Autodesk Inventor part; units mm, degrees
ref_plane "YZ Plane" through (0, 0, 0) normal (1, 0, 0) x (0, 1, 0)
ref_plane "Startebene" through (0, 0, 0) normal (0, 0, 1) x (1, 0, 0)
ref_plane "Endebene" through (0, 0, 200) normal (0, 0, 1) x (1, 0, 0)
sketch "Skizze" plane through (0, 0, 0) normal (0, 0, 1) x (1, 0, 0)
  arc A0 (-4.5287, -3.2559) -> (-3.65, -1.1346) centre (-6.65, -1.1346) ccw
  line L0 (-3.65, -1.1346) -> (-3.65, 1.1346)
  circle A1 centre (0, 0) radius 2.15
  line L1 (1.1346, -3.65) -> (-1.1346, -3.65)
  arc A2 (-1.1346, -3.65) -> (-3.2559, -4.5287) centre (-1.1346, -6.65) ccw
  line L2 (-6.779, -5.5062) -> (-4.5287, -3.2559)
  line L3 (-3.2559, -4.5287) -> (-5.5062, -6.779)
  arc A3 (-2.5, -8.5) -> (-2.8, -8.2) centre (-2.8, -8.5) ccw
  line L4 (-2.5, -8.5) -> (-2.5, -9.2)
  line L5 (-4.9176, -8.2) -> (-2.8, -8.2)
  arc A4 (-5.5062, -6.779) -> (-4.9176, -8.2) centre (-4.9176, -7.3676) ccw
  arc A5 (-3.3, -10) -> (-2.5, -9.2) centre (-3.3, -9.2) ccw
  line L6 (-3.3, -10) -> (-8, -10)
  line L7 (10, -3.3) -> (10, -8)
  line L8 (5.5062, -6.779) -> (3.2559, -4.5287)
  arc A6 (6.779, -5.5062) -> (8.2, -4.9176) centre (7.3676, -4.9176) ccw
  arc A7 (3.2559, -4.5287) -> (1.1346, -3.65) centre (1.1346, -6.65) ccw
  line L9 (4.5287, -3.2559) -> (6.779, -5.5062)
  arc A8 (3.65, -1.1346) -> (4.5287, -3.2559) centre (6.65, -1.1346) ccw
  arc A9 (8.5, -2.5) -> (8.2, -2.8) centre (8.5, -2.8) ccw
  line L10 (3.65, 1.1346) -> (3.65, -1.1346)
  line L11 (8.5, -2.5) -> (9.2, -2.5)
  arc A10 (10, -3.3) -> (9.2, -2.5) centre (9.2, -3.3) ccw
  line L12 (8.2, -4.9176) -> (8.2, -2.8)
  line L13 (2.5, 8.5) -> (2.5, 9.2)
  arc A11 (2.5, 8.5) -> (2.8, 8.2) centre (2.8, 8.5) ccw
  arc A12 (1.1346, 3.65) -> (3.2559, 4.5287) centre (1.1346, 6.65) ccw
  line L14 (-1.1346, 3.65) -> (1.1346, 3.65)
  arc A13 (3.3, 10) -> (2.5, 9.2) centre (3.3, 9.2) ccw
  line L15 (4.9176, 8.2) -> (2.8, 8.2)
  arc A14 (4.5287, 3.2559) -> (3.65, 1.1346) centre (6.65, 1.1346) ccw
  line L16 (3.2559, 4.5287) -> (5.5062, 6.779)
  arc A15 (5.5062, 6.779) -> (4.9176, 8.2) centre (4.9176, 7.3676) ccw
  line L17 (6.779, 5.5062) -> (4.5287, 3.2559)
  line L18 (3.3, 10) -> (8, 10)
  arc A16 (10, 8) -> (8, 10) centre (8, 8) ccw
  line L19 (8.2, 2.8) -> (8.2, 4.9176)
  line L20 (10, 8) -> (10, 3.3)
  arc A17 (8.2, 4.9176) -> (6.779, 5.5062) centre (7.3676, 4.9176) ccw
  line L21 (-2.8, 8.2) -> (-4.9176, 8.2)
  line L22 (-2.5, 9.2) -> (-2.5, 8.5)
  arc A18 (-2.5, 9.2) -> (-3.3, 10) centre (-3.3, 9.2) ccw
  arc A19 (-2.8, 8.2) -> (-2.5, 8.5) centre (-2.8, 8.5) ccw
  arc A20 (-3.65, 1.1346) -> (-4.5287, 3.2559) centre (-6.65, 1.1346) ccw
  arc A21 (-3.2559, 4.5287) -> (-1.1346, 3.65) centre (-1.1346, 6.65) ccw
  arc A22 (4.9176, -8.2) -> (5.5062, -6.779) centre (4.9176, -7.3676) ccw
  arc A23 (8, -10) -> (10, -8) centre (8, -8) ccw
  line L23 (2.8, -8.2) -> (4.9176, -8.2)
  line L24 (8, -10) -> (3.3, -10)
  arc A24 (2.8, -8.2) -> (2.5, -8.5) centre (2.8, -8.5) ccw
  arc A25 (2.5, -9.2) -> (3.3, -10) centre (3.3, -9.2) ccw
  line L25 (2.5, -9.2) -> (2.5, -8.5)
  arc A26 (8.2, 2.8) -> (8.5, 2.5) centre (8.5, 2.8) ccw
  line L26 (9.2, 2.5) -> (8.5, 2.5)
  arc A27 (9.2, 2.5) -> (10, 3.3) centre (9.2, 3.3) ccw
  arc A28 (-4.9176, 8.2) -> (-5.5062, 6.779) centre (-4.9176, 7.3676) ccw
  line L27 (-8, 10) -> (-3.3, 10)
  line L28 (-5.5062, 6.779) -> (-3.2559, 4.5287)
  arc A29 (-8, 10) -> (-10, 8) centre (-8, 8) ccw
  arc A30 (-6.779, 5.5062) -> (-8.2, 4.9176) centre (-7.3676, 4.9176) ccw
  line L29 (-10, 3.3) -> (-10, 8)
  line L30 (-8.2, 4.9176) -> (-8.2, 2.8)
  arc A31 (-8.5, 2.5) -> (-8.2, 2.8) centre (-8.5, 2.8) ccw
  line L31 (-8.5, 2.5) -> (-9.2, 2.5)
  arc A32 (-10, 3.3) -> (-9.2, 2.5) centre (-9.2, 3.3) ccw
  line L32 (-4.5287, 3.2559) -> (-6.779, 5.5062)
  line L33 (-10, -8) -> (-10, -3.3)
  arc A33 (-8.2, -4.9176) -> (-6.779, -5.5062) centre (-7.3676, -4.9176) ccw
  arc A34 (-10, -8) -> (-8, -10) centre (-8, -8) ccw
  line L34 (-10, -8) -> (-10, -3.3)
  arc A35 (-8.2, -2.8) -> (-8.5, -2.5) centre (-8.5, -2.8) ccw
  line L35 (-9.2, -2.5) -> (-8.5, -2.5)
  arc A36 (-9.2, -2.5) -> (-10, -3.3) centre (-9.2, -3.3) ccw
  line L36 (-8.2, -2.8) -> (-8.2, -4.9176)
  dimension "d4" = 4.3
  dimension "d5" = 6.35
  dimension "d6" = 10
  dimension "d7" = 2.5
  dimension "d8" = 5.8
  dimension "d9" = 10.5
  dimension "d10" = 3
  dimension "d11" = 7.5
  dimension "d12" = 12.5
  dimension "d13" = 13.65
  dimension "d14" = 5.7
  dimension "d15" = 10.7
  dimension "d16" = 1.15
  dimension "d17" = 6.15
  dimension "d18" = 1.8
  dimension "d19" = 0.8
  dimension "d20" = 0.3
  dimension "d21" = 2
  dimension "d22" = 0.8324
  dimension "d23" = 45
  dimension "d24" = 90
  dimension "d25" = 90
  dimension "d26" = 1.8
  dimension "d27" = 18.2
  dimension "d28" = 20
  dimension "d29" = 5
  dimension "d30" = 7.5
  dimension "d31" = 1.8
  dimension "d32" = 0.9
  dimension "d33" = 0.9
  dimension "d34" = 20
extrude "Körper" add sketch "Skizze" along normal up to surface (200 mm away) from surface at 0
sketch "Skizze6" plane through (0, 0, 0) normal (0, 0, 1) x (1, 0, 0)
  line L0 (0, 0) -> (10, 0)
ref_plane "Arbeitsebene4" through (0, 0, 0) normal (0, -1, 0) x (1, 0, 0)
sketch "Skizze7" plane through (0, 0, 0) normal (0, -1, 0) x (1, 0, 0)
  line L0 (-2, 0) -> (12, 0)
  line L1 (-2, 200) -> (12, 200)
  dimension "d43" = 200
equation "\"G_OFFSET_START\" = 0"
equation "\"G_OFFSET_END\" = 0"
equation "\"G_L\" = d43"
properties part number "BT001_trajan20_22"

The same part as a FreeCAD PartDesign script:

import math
import FreeCAD as App
import Part
import Sketcher

V = App.Vector

doc = App.newDocument("Part")
body = doc.addObject("PartDesign::Body", "Body")

# Sketch on XY plane
sketch1 = body.newObject("Sketcher::SketchObject", "Sketch")
sketch1.AttachmentSupport = (doc.getObject("XY_Plane"), [""])
sketch1.MapMode = "FlatFace"
sketch1.addGeometry([
    Part.ArcOfCircle(Part.Circle(V(-6.65, -1.1346, 0), V(0, 0, 1), 2.999971), math.radians(-45), math.radians(0)),  # 0
    Part.LineSegment(V(-4.5287, -3.2559, 0), V(-6.779, -5.5062, 0)),  # 1
    Part.ArcOfCircle(Part.Circle(V(-7.3676, -4.9176, 0), V(0, 0, 1), 0.8324), math.radians(180), math.radians(315)),  # 2
    Part.LineSegment(V(-8.2, -4.9176, 0), V(-8.2, -2.8, 0)),  # 3
    Part.ArcOfCircle(Part.Circle(V(-8.5, -2.8, 0), V(0, 0, 1), 0.3), math.radians(0), math.radians(90)),  # 4
    Part.LineSegment(V(-8.5, -2.5, 0), V(-9.2, -2.5, 0)),  # 5
    Part.ArcOfCircle(Part.Circle(V(-9.2, -3.3, 0), V(0, 0, 1), 0.8), math.radians(90), math.radians(180)),  # 6
    Part.LineSegment(V(-10, -3.3, 0), V(-10, -8, 0)),  # 7
    Part.ArcOfCircle(Part.Circle(V(-8, -8, 0), V(0, 0, 1), 2), math.radians(180), math.radians(270)),  # 8
    Part.LineSegment(V(-8, -10, 0), V(-3.3, -10, 0)),  # 9
    Part.ArcOfCircle(Part.Circle(V(-3.3, -9.2, 0), V(0, 0, 1), 0.8), math.radians(-90), math.radians(0)),  # 10
    Part.LineSegment(V(-2.5, -9.2, 0), V(-2.5, -8.5, 0)),  # 11
    Part.ArcOfCircle(Part.Circle(V(-2.8, -8.5, 0), V(0, 0, 1), 0.3), math.radians(0), math.radians(90)),  # 12
    Part.LineSegment(V(-2.8, -8.2, 0), V(-4.9176, -8.2, 0)),  # 13
    Part.ArcOfCircle(Part.Circle(V(-4.9176, -7.3676, 0), V(0, 0, 1), 0.832406), math.radians(135), math.radians(270)),  # 14
    Part.LineSegment(V(-5.5062, -6.779, 0), V(-3.2559, -4.5287, 0)),  # 15
    Part.ArcOfCircle(Part.Circle(V(-1.1346, -6.65, 0), V(0, 0, 1), 3), math.radians(90), math.radians(135)),  # 16
    Part.LineSegment(V(-1.1346, -3.65, 0), V(1.1346, -3.65, 0)),  # 17
    Part.ArcOfCircle(Part.Circle(V(1.1346, -6.65, 0), V(0, 0, 1), 2.999971), math.radians(45), math.radians(90)),  # 18
    Part.LineSegment(V(3.2559, -4.5287, 0), V(5.5062, -6.779, 0)),  # 19
    Part.ArcOfCircle(Part.Circle(V(4.9176, -7.3676, 0), V(0, 0, 1), 0.8324), math.radians(-90), math.radians(45)),  # 20
    Part.LineSegment(V(4.9176, -8.2, 0), V(2.8, -8.2, 0)),  # 21
    Part.ArcOfCircle(Part.Circle(V(2.8, -8.5, 0), V(0, 0, 1), 0.3), math.radians(90), math.radians(180)),  # 22
    Part.LineSegment(V(2.5, -8.5, 0), V(2.5, -9.2, 0)),  # 23
    Part.ArcOfCircle(Part.Circle(V(3.3, -9.2, 0), V(0, 0, 1), 0.8), math.radians(180), math.radians(270)),  # 24
    Part.LineSegment(V(3.3, -10, 0), V(8, -10, 0)),  # 25
    Part.ArcOfCircle(Part.Circle(V(8, -8, 0), V(0, 0, 1), 2), math.radians(-90), math.radians(0)),  # 26
    Part.LineSegment(V(10, -8, 0), V(10, -3.3, 0)),  # 27
    Part.ArcOfCircle(Part.Circle(V(9.2, -3.3, 0), V(0, 0, 1), 0.8), math.radians(0), math.radians(90)),  # 28
    Part.LineSegment(V(9.2, -2.5, 0), V(8.5, -2.5, 0)),  # 29
    Part.ArcOfCircle(Part.Circle(V(8.5, -2.8, 0), V(0, 0, 1), 0.3), math.radians(90), math.radians(180)),  # 30
    Part.LineSegment(V(8.2, -2.8, 0), V(8.2, -4.9176, 0)),  # 31
    Part.ArcOfCircle(Part.Circle(V(7.3676, -4.9176, 0), V(0, 0, 1), 0.832406), math.radians(-135), math.radians(0)),  # 32
    Part.LineSegment(V(6.779, -5.5062, 0), V(4.5287, -3.2559, 0)),  # 33
    Part.ArcOfCircle(Part.Circle(V(6.65, -1.1346, 0), V(0, 0, 1), 3), math.radians(180), math.radians(225)),  # 34
    Part.LineSegment(V(3.65, -1.1346, 0), V(3.65, 1.1346, 0)),  # 35
    Part.ArcOfCircle(Part.Circle(V(6.65, 1.1346, 0), V(0, 0, 1), 2.999971), math.radians(135), math.radians(180)),  # 36
    Part.LineSegment(V(4.5287, 3.2559, 0), V(6.779, 5.5062, 0)),  # 37
    Part.ArcOfCircle(Part.Circle(V(7.3676, 4.9176, 0), V(0, 0, 1), 0.8324), math.radians(0), math.radians(135)),  # 38
    Part.LineSegment(V(8.2, 4.9176, 0), V(8.2, 2.8, 0)),  # 39
    Part.ArcOfCircle(Part.Circle(V(8.5, 2.8, 0), V(0, 0, 1), 0.3), math.radians(180), math.radians(270)),  # 40
    Part.LineSegment(V(8.5, 2.5, 0), V(9.2, 2.5, 0)),  # 41
    Part.ArcOfCircle(Part.Circle(V(9.2, 3.3, 0), V(0, 0, 1), 0.8), math.radians(-90), math.radians(0)),  # 42
    Part.LineSegment(V(10, 3.3, 0), V(10, 8, 0)),  # 43
    Part.ArcOfCircle(Part.Circle(V(8, 8, 0), V(0, 0, 1), 2), math.radians(0), math.radians(90)),  # 44
    Part.LineSegment(V(8, 10, 0), V(3.3, 10, 0)),  # 45
    Part.ArcOfCircle(Part.Circle(V(3.3, 9.2, 0), V(0, 0, 1), 0.8), math.radians(90), math.radians(180)),  # 46
    Part.LineSegment(V(2.5, 9.2, 0), V(2.5, 8.5, 0)),  # 47
    Part.ArcOfCircle(Part.Circle(V(2.8, 8.5, 0), V(0, 0, 1), 0.3), math.radians(180), math.radians(270)),  # 48
    Part.LineSegment(V(2.8, 8.2, 0), V(4.9176, 8.2, 0)),  # 49
    Part.ArcOfCircle(Part.Circle(V(4.9176, 7.3676, 0), V(0, 0, 1), 0.832406), math.radians(-45), math.radians(90)),  # 50
    Part.LineSegment(V(5.5062, 6.779, 0), V(3.2559, 4.5287, 0)),  # 51
    Part.ArcOfCircle(Part.Circle(V(1.1346, 6.65, 0), V(0, 0, 1), 3), math.radians(-90), math.radians(-45)),  # 52
    Part.LineSegment(V(1.1346, 3.65, 0), V(-1.1346, 3.65, 0)),  # 53
    Part.ArcOfCircle(Part.Circle(V(-1.1346, 6.65, 0), V(0, 0, 1), 2.999971), math.radians(-135), math.radians(-90)),  # 54
    Part.LineSegment(V(-3.2559, 4.5287, 0), V(-5.5062, 6.779, 0)),  # 55
    Part.ArcOfCircle(Part.Circle(V(-4.9176, 7.3676, 0), V(0, 0, 1), 0.8324), math.radians(90), math.radians(225)),  # 56
    Part.LineSegment(V(-4.9176, 8.2, 0), V(-2.8, 8.2, 0)),  # 57
    Part.ArcOfCircle(Part.Circle(V(-2.8, 8.5, 0), V(0, 0, 1), 0.3), math.radians(-90), math.radians(0)),  # 58
    Part.LineSegment(V(-2.5, 8.5, 0), V(-2.5, 9.2, 0)),  # 59
    Part.ArcOfCircle(Part.Circle(V(-3.3, 9.2, 0), V(0, 0, 1), 0.8), math.radians(0), math.radians(90)),  # 60
    Part.LineSegment(V(-3.3, 10, 0), V(-8, 10, 0)),  # 61
    Part.ArcOfCircle(Part.Circle(V(-8, 8, 0), V(0, 0, 1), 2), math.radians(90), math.radians(180)),  # 62
    Part.LineSegment(V(-10, 8, 0), V(-10, 3.3, 0)),  # 63
    Part.ArcOfCircle(Part.Circle(V(-9.2, 3.3, 0), V(0, 0, 1), 0.8), math.radians(180), math.radians(270)),  # 64
    Part.LineSegment(V(-9.2, 2.5, 0), V(-8.5, 2.5, 0)),  # 65
    Part.ArcOfCircle(Part.Circle(V(-8.5, 2.8, 0), V(0, 0, 1), 0.3), math.radians(-90), math.radians(0)),  # 66
    Part.LineSegment(V(-8.2, 2.8, 0), V(-8.2, 4.9176, 0)),  # 67
    Part.ArcOfCircle(Part.Circle(V(-7.3676, 4.9176, 0), V(0, 0, 1), 0.832406), math.radians(45), math.radians(180)),  # 68
    Part.LineSegment(V(-6.779, 5.5062, 0), V(-4.5287, 3.2559, 0)),  # 69
    Part.ArcOfCircle(Part.Circle(V(-6.65, 1.1346, 0), V(0, 0, 1), 3), math.radians(0), math.radians(45)),  # 70
    Part.LineSegment(V(-3.65, 1.1346, 0), V(-3.65, -1.1346, 0)),  # 71
    Part.Circle(V(0, 0, 0), V(0, 0, 1), 2.15),  # 72
], False)
sketch1.addConstraint([
    Sketcher.Constraint("Tangent", 0, 1, 1, 1),
    Sketcher.Constraint("Tangent", 1, 2, 2, 2),
    Sketcher.Constraint("Tangent", 2, 1, 3, 1),
    Sketcher.Constraint("Tangent", 3, 2, 4, 1),
    Sketcher.Constraint("Tangent", 4, 2, 5, 1),
    Sketcher.Constraint("Tangent", 5, 2, 6, 1),
    Sketcher.Constraint("Tangent", 6, 2, 7, 1),
    Sketcher.Constraint("Tangent", 7, 2, 8, 1),
    Sketcher.Constraint("Tangent", 8, 2, 9, 1),
    Sketcher.Constraint("Tangent", 9, 2, 10, 1),
    Sketcher.Constraint("Tangent", 10, 2, 11, 1),
    Sketcher.Constraint("Tangent", 11, 2, 12, 1),
    Sketcher.Constraint("Tangent", 12, 2, 13, 1),
    Sketcher.Constraint("Tangent", 13, 2, 14, 2),
    Sketcher.Constraint("Tangent", 14, 1, 15, 1),
    Sketcher.Constraint("Tangent", 15, 2, 16, 2),
    Sketcher.Constraint("Tangent", 16, 1, 17, 1),
    Sketcher.Constraint("Tangent", 17, 2, 18, 2),
    Sketcher.Constraint("Tangent", 18, 1, 19, 1),
    Sketcher.Constraint("Tangent", 19, 2, 20, 2),
    Sketcher.Constraint("Tangent", 20, 1, 21, 1),
    Sketcher.Constraint("Tangent", 21, 2, 22, 1),
    Sketcher.Constraint("Tangent", 22, 2, 23, 1),
    Sketcher.Constraint("Tangent", 23, 2, 24, 1),
    Sketcher.Constraint("Tangent", 24, 2, 25, 1),
    Sketcher.Constraint("Tangent", 25, 2, 26, 1),
    Sketcher.Constraint("Tangent", 26, 2, 27, 1),
    Sketcher.Constraint("Tangent", 27, 2, 28, 1),
    Sketcher.Constraint("Tangent", 28, 2, 29, 1),
    Sketcher.Constraint("Tangent", 29, 2, 30, 1),
    Sketcher.Constraint("Tangent", 30, 2, 31, 1),
    Sketcher.Constraint("Tangent", 31, 2, 32, 2),
    Sketcher.Constraint("Tangent", 32, 1, 33, 1),
    Sketcher.Constraint("Tangent", 33, 2, 34, 2),
    Sketcher.Constraint("Tangent", 34, 1, 35, 1),
    Sketcher.Constraint("Tangent", 35, 2, 36, 2),
    Sketcher.Constraint("Tangent", 36, 1, 37, 1),
    Sketcher.Constraint("Tangent", 37, 2, 38, 2),
    Sketcher.Constraint("Tangent", 38, 1, 39, 1),
    Sketcher.Constraint("Tangent", 39, 2, 40, 1),
    Sketcher.Constraint("Tangent", 40, 2, 41, 1),
    Sketcher.Constraint("Tangent", 41, 2, 42, 1),
    Sketcher.Constraint("Tangent", 42, 2, 43, 1),
    Sketcher.Constraint("Tangent", 43, 2, 44, 1),
    Sketcher.Constraint("Tangent", 44, 2, 45, 1),
    Sketcher.Constraint("Tangent", 45, 2, 46, 1),
    Sketcher.Constraint("Tangent", 46, 2, 47, 1),
    Sketcher.Constraint("Tangent", 47, 2, 48, 1),
    Sketcher.Constraint("Tangent", 48, 2, 49, 1),
    Sketcher.Constraint("Tangent", 49, 2, 50, 2),
    Sketcher.Constraint("Tangent", 50, 1, 51, 1),
    Sketcher.Constraint("Tangent", 51, 2, 52, 2),
    Sketcher.Constraint("Tangent", 52, 1, 53, 1),
    Sketcher.Constraint("Tangent", 53, 2, 54, 2),
    Sketcher.Constraint("Tangent", 54, 1, 55, 1),
    Sketcher.Constraint("Tangent", 55, 2, 56, 2),
    Sketcher.Constraint("Tangent", 56, 1, 57, 1),
    Sketcher.Constraint("Tangent", 57, 2, 58, 1),
    Sketcher.Constraint("Tangent", 58, 2, 59, 1),
    Sketcher.Constraint("Tangent", 59, 2, 60, 1),
    Sketcher.Constraint("Tangent", 60, 2, 61, 1),
    Sketcher.Constraint("Tangent", 61, 2, 62, 1),
    Sketcher.Constraint("Tangent", 62, 2, 63, 1),
    Sketcher.Constraint("Tangent", 63, 2, 64, 1),
    Sketcher.Constraint("Tangent", 64, 2, 65, 1),
    Sketcher.Constraint("Tangent", 65, 2, 66, 1),
    Sketcher.Constraint("Tangent", 66, 2, 67, 1),
    Sketcher.Constraint("Tangent", 67, 2, 68, 2),
    Sketcher.Constraint("Tangent", 68, 1, 69, 1),
    Sketcher.Constraint("Tangent", 69, 2, 70, 2),
    Sketcher.Constraint("Tangent", 70, 1, 71, 1),
    Sketcher.Constraint("Tangent", 71, 2, 0, 2),
    Sketcher.Constraint("Vertical", 3),
    Sketcher.Constraint("Horizontal", 5),
    Sketcher.Constraint("Vertical", 7),
    Sketcher.Constraint("Horizontal", 9),
    Sketcher.Constraint("Vertical", 11),
    Sketcher.Constraint("Horizontal", 13),
    Sketcher.Constraint("Horizontal", 17),
    Sketcher.Constraint("Horizontal", 21),
    Sketcher.Constraint("Vertical", 23),
    Sketcher.Constraint("Horizontal", 25),
    Sketcher.Constraint("Vertical", 27),
    Sketcher.Constraint("Horizontal", 29),
    Sketcher.Constraint("Vertical", 31),
    Sketcher.Constraint("Vertical", 35),
    Sketcher.Constraint("Vertical", 39),
    Sketcher.Constraint("Horizontal", 41),
    Sketcher.Constraint("Vertical", 43),
    Sketcher.Constraint("Horizontal", 45),
    Sketcher.Constraint("Vertical", 47),
    Sketcher.Constraint("Horizontal", 49),
    Sketcher.Constraint("Horizontal", 53),
    Sketcher.Constraint("Horizontal", 57),
    Sketcher.Constraint("Vertical", 59),
    Sketcher.Constraint("Horizontal", 61),
    Sketcher.Constraint("Vertical", 63),
    Sketcher.Constraint("Horizontal", 65),
    Sketcher.Constraint("Vertical", 67),
    Sketcher.Constraint("Vertical", 71),
    Sketcher.Constraint("Coincident", 72, 3, -1, 1),
    Sketcher.Constraint("Equal", 6, 10),
    Sketcher.Constraint("Equal", 4, 12),
    Sketcher.Constraint("Equal", 2, 14),
    Sketcher.Constraint("Equal", 0, 16),
    Sketcher.Constraint("Equal", 16, 18),
    Sketcher.Constraint("Equal", 14, 20),
    Sketcher.Constraint("Equal", 12, 22),
    Sketcher.Constraint("Equal", 10, 24),
    Sketcher.Constraint("Equal", 8, 26),
    Sketcher.Constraint("Equal", 24, 28),
    Sketcher.Constraint("Equal", 22, 30),
    Sketcher.Constraint("Equal", 20, 32),
    Sketcher.Constraint("Equal", 18, 34),
    Sketcher.Constraint("Equal", 34, 36),
    Sketcher.Constraint("Equal", 32, 38),
    Sketcher.Constraint("Equal", 30, 40),
    Sketcher.Constraint("Equal", 28, 42),
    Sketcher.Constraint("Equal", 26, 44),
    Sketcher.Constraint("Equal", 42, 46),
    Sketcher.Constraint("Equal", 40, 48),
    Sketcher.Constraint("Equal", 38, 50),
    Sketcher.Constraint("Equal", 36, 52),
    Sketcher.Constraint("Equal", 52, 54),
    Sketcher.Constraint("Equal", 50, 56),
    Sketcher.Constraint("Equal", 48, 58),
    Sketcher.Constraint("Equal", 46, 60),
    Sketcher.Constraint("Equal", 44, 62),
    Sketcher.Constraint("Equal", 60, 64),
    Sketcher.Constraint("Equal", 58, 66),
    Sketcher.Constraint("Equal", 56, 68),
    Sketcher.Constraint("Equal", 54, 70),
    Sketcher.Constraint("Symmetric", 0, 3, 36, 3, -1, 1),
    Sketcher.Constraint("Symmetric", 2, 3, 38, 3, -1, 1),
    Sketcher.Constraint("Symmetric", 6, 3, 42, 3, -1, 1),
    Sketcher.Constraint("Symmetric", 10, 3, 46, 3, -1, 1),
    Sketcher.Constraint("Symmetric", 14, 3, 50, 3, -1, 1),
    Sketcher.Constraint("Symmetric", 16, 3, 52, 3, -1, 1),
    Sketcher.Constraint("Symmetric", 20, 3, 56, 3, -1, 1),
    Sketcher.Constraint("Symmetric", 24, 3, 60, 3, -1, 1),
    Sketcher.Constraint("Symmetric", 28, 3, 64, 3, -1, 1),
    Sketcher.Constraint("Symmetric", 32, 3, 68, 3, -1, 1),
    Sketcher.Constraint("Symmetric", 14, 3, 20, 3, -2),
    Sketcher.Constraint("Symmetric", 10, 3, 24, 3, -2),
    Sketcher.Constraint("Symmetric", 6, 3, 28, 3, -2),
    Sketcher.Constraint("Symmetric", 2, 3, 32, 3, -2),
    Sketcher.Constraint("Parallel", 1, 15),
    Sketcher.Constraint("Perpendicular", 15, 19),
    Sketcher.Constraint("Parallel", 19, 33),
    Sketcher.Constraint("Perpendicular", 51, 55),
    Sketcher.Constraint("Parallel", 55, 69),
    Sketcher.Constraint("Horizontal", 0, 3, 34, 3),
    Sketcher.Constraint("Equal", 57, 3),
    Sketcher.Constraint("Equal", 61, 7),
    Sketcher.Constraint("Equal", 65, 11),
    Sketcher.Constraint("Equal", 53, 35),
    Sketcher.Constraint("Equal", 1, 15),
    Sketcher.Constraint("Radius", 0, 3.0),
    Sketcher.Constraint("Radius", 8, 2.0),
    Sketcher.Constraint("Diameter", 72, 4.3),
    Sketcher.Constraint("Radius", 4, 0.3),
    Sketcher.Constraint("Radius", 6, 0.8),
    Sketcher.Constraint("DistanceX", 6, 2, -1, 1, 10.0),
    Sketcher.Constraint("DistanceY", 4, 2, -1, 1, 2.5),
    Sketcher.Constraint("Radius", 2, 0.8324),
    Sketcher.Constraint("DistanceX", 5, 2, 5, 1, 0.7),
    Sketcher.Constraint("DistanceX", 0, 3, -1, 1, 6.65),
    Sketcher.Constraint("DistanceX", 13, 2, 13, 1, 2.1176),
])
pad1 = body.newObject("PartDesign::Pad", "Pad")
pad1.Profile = sketch1
pad1.Length = 200

doc.recompute()
